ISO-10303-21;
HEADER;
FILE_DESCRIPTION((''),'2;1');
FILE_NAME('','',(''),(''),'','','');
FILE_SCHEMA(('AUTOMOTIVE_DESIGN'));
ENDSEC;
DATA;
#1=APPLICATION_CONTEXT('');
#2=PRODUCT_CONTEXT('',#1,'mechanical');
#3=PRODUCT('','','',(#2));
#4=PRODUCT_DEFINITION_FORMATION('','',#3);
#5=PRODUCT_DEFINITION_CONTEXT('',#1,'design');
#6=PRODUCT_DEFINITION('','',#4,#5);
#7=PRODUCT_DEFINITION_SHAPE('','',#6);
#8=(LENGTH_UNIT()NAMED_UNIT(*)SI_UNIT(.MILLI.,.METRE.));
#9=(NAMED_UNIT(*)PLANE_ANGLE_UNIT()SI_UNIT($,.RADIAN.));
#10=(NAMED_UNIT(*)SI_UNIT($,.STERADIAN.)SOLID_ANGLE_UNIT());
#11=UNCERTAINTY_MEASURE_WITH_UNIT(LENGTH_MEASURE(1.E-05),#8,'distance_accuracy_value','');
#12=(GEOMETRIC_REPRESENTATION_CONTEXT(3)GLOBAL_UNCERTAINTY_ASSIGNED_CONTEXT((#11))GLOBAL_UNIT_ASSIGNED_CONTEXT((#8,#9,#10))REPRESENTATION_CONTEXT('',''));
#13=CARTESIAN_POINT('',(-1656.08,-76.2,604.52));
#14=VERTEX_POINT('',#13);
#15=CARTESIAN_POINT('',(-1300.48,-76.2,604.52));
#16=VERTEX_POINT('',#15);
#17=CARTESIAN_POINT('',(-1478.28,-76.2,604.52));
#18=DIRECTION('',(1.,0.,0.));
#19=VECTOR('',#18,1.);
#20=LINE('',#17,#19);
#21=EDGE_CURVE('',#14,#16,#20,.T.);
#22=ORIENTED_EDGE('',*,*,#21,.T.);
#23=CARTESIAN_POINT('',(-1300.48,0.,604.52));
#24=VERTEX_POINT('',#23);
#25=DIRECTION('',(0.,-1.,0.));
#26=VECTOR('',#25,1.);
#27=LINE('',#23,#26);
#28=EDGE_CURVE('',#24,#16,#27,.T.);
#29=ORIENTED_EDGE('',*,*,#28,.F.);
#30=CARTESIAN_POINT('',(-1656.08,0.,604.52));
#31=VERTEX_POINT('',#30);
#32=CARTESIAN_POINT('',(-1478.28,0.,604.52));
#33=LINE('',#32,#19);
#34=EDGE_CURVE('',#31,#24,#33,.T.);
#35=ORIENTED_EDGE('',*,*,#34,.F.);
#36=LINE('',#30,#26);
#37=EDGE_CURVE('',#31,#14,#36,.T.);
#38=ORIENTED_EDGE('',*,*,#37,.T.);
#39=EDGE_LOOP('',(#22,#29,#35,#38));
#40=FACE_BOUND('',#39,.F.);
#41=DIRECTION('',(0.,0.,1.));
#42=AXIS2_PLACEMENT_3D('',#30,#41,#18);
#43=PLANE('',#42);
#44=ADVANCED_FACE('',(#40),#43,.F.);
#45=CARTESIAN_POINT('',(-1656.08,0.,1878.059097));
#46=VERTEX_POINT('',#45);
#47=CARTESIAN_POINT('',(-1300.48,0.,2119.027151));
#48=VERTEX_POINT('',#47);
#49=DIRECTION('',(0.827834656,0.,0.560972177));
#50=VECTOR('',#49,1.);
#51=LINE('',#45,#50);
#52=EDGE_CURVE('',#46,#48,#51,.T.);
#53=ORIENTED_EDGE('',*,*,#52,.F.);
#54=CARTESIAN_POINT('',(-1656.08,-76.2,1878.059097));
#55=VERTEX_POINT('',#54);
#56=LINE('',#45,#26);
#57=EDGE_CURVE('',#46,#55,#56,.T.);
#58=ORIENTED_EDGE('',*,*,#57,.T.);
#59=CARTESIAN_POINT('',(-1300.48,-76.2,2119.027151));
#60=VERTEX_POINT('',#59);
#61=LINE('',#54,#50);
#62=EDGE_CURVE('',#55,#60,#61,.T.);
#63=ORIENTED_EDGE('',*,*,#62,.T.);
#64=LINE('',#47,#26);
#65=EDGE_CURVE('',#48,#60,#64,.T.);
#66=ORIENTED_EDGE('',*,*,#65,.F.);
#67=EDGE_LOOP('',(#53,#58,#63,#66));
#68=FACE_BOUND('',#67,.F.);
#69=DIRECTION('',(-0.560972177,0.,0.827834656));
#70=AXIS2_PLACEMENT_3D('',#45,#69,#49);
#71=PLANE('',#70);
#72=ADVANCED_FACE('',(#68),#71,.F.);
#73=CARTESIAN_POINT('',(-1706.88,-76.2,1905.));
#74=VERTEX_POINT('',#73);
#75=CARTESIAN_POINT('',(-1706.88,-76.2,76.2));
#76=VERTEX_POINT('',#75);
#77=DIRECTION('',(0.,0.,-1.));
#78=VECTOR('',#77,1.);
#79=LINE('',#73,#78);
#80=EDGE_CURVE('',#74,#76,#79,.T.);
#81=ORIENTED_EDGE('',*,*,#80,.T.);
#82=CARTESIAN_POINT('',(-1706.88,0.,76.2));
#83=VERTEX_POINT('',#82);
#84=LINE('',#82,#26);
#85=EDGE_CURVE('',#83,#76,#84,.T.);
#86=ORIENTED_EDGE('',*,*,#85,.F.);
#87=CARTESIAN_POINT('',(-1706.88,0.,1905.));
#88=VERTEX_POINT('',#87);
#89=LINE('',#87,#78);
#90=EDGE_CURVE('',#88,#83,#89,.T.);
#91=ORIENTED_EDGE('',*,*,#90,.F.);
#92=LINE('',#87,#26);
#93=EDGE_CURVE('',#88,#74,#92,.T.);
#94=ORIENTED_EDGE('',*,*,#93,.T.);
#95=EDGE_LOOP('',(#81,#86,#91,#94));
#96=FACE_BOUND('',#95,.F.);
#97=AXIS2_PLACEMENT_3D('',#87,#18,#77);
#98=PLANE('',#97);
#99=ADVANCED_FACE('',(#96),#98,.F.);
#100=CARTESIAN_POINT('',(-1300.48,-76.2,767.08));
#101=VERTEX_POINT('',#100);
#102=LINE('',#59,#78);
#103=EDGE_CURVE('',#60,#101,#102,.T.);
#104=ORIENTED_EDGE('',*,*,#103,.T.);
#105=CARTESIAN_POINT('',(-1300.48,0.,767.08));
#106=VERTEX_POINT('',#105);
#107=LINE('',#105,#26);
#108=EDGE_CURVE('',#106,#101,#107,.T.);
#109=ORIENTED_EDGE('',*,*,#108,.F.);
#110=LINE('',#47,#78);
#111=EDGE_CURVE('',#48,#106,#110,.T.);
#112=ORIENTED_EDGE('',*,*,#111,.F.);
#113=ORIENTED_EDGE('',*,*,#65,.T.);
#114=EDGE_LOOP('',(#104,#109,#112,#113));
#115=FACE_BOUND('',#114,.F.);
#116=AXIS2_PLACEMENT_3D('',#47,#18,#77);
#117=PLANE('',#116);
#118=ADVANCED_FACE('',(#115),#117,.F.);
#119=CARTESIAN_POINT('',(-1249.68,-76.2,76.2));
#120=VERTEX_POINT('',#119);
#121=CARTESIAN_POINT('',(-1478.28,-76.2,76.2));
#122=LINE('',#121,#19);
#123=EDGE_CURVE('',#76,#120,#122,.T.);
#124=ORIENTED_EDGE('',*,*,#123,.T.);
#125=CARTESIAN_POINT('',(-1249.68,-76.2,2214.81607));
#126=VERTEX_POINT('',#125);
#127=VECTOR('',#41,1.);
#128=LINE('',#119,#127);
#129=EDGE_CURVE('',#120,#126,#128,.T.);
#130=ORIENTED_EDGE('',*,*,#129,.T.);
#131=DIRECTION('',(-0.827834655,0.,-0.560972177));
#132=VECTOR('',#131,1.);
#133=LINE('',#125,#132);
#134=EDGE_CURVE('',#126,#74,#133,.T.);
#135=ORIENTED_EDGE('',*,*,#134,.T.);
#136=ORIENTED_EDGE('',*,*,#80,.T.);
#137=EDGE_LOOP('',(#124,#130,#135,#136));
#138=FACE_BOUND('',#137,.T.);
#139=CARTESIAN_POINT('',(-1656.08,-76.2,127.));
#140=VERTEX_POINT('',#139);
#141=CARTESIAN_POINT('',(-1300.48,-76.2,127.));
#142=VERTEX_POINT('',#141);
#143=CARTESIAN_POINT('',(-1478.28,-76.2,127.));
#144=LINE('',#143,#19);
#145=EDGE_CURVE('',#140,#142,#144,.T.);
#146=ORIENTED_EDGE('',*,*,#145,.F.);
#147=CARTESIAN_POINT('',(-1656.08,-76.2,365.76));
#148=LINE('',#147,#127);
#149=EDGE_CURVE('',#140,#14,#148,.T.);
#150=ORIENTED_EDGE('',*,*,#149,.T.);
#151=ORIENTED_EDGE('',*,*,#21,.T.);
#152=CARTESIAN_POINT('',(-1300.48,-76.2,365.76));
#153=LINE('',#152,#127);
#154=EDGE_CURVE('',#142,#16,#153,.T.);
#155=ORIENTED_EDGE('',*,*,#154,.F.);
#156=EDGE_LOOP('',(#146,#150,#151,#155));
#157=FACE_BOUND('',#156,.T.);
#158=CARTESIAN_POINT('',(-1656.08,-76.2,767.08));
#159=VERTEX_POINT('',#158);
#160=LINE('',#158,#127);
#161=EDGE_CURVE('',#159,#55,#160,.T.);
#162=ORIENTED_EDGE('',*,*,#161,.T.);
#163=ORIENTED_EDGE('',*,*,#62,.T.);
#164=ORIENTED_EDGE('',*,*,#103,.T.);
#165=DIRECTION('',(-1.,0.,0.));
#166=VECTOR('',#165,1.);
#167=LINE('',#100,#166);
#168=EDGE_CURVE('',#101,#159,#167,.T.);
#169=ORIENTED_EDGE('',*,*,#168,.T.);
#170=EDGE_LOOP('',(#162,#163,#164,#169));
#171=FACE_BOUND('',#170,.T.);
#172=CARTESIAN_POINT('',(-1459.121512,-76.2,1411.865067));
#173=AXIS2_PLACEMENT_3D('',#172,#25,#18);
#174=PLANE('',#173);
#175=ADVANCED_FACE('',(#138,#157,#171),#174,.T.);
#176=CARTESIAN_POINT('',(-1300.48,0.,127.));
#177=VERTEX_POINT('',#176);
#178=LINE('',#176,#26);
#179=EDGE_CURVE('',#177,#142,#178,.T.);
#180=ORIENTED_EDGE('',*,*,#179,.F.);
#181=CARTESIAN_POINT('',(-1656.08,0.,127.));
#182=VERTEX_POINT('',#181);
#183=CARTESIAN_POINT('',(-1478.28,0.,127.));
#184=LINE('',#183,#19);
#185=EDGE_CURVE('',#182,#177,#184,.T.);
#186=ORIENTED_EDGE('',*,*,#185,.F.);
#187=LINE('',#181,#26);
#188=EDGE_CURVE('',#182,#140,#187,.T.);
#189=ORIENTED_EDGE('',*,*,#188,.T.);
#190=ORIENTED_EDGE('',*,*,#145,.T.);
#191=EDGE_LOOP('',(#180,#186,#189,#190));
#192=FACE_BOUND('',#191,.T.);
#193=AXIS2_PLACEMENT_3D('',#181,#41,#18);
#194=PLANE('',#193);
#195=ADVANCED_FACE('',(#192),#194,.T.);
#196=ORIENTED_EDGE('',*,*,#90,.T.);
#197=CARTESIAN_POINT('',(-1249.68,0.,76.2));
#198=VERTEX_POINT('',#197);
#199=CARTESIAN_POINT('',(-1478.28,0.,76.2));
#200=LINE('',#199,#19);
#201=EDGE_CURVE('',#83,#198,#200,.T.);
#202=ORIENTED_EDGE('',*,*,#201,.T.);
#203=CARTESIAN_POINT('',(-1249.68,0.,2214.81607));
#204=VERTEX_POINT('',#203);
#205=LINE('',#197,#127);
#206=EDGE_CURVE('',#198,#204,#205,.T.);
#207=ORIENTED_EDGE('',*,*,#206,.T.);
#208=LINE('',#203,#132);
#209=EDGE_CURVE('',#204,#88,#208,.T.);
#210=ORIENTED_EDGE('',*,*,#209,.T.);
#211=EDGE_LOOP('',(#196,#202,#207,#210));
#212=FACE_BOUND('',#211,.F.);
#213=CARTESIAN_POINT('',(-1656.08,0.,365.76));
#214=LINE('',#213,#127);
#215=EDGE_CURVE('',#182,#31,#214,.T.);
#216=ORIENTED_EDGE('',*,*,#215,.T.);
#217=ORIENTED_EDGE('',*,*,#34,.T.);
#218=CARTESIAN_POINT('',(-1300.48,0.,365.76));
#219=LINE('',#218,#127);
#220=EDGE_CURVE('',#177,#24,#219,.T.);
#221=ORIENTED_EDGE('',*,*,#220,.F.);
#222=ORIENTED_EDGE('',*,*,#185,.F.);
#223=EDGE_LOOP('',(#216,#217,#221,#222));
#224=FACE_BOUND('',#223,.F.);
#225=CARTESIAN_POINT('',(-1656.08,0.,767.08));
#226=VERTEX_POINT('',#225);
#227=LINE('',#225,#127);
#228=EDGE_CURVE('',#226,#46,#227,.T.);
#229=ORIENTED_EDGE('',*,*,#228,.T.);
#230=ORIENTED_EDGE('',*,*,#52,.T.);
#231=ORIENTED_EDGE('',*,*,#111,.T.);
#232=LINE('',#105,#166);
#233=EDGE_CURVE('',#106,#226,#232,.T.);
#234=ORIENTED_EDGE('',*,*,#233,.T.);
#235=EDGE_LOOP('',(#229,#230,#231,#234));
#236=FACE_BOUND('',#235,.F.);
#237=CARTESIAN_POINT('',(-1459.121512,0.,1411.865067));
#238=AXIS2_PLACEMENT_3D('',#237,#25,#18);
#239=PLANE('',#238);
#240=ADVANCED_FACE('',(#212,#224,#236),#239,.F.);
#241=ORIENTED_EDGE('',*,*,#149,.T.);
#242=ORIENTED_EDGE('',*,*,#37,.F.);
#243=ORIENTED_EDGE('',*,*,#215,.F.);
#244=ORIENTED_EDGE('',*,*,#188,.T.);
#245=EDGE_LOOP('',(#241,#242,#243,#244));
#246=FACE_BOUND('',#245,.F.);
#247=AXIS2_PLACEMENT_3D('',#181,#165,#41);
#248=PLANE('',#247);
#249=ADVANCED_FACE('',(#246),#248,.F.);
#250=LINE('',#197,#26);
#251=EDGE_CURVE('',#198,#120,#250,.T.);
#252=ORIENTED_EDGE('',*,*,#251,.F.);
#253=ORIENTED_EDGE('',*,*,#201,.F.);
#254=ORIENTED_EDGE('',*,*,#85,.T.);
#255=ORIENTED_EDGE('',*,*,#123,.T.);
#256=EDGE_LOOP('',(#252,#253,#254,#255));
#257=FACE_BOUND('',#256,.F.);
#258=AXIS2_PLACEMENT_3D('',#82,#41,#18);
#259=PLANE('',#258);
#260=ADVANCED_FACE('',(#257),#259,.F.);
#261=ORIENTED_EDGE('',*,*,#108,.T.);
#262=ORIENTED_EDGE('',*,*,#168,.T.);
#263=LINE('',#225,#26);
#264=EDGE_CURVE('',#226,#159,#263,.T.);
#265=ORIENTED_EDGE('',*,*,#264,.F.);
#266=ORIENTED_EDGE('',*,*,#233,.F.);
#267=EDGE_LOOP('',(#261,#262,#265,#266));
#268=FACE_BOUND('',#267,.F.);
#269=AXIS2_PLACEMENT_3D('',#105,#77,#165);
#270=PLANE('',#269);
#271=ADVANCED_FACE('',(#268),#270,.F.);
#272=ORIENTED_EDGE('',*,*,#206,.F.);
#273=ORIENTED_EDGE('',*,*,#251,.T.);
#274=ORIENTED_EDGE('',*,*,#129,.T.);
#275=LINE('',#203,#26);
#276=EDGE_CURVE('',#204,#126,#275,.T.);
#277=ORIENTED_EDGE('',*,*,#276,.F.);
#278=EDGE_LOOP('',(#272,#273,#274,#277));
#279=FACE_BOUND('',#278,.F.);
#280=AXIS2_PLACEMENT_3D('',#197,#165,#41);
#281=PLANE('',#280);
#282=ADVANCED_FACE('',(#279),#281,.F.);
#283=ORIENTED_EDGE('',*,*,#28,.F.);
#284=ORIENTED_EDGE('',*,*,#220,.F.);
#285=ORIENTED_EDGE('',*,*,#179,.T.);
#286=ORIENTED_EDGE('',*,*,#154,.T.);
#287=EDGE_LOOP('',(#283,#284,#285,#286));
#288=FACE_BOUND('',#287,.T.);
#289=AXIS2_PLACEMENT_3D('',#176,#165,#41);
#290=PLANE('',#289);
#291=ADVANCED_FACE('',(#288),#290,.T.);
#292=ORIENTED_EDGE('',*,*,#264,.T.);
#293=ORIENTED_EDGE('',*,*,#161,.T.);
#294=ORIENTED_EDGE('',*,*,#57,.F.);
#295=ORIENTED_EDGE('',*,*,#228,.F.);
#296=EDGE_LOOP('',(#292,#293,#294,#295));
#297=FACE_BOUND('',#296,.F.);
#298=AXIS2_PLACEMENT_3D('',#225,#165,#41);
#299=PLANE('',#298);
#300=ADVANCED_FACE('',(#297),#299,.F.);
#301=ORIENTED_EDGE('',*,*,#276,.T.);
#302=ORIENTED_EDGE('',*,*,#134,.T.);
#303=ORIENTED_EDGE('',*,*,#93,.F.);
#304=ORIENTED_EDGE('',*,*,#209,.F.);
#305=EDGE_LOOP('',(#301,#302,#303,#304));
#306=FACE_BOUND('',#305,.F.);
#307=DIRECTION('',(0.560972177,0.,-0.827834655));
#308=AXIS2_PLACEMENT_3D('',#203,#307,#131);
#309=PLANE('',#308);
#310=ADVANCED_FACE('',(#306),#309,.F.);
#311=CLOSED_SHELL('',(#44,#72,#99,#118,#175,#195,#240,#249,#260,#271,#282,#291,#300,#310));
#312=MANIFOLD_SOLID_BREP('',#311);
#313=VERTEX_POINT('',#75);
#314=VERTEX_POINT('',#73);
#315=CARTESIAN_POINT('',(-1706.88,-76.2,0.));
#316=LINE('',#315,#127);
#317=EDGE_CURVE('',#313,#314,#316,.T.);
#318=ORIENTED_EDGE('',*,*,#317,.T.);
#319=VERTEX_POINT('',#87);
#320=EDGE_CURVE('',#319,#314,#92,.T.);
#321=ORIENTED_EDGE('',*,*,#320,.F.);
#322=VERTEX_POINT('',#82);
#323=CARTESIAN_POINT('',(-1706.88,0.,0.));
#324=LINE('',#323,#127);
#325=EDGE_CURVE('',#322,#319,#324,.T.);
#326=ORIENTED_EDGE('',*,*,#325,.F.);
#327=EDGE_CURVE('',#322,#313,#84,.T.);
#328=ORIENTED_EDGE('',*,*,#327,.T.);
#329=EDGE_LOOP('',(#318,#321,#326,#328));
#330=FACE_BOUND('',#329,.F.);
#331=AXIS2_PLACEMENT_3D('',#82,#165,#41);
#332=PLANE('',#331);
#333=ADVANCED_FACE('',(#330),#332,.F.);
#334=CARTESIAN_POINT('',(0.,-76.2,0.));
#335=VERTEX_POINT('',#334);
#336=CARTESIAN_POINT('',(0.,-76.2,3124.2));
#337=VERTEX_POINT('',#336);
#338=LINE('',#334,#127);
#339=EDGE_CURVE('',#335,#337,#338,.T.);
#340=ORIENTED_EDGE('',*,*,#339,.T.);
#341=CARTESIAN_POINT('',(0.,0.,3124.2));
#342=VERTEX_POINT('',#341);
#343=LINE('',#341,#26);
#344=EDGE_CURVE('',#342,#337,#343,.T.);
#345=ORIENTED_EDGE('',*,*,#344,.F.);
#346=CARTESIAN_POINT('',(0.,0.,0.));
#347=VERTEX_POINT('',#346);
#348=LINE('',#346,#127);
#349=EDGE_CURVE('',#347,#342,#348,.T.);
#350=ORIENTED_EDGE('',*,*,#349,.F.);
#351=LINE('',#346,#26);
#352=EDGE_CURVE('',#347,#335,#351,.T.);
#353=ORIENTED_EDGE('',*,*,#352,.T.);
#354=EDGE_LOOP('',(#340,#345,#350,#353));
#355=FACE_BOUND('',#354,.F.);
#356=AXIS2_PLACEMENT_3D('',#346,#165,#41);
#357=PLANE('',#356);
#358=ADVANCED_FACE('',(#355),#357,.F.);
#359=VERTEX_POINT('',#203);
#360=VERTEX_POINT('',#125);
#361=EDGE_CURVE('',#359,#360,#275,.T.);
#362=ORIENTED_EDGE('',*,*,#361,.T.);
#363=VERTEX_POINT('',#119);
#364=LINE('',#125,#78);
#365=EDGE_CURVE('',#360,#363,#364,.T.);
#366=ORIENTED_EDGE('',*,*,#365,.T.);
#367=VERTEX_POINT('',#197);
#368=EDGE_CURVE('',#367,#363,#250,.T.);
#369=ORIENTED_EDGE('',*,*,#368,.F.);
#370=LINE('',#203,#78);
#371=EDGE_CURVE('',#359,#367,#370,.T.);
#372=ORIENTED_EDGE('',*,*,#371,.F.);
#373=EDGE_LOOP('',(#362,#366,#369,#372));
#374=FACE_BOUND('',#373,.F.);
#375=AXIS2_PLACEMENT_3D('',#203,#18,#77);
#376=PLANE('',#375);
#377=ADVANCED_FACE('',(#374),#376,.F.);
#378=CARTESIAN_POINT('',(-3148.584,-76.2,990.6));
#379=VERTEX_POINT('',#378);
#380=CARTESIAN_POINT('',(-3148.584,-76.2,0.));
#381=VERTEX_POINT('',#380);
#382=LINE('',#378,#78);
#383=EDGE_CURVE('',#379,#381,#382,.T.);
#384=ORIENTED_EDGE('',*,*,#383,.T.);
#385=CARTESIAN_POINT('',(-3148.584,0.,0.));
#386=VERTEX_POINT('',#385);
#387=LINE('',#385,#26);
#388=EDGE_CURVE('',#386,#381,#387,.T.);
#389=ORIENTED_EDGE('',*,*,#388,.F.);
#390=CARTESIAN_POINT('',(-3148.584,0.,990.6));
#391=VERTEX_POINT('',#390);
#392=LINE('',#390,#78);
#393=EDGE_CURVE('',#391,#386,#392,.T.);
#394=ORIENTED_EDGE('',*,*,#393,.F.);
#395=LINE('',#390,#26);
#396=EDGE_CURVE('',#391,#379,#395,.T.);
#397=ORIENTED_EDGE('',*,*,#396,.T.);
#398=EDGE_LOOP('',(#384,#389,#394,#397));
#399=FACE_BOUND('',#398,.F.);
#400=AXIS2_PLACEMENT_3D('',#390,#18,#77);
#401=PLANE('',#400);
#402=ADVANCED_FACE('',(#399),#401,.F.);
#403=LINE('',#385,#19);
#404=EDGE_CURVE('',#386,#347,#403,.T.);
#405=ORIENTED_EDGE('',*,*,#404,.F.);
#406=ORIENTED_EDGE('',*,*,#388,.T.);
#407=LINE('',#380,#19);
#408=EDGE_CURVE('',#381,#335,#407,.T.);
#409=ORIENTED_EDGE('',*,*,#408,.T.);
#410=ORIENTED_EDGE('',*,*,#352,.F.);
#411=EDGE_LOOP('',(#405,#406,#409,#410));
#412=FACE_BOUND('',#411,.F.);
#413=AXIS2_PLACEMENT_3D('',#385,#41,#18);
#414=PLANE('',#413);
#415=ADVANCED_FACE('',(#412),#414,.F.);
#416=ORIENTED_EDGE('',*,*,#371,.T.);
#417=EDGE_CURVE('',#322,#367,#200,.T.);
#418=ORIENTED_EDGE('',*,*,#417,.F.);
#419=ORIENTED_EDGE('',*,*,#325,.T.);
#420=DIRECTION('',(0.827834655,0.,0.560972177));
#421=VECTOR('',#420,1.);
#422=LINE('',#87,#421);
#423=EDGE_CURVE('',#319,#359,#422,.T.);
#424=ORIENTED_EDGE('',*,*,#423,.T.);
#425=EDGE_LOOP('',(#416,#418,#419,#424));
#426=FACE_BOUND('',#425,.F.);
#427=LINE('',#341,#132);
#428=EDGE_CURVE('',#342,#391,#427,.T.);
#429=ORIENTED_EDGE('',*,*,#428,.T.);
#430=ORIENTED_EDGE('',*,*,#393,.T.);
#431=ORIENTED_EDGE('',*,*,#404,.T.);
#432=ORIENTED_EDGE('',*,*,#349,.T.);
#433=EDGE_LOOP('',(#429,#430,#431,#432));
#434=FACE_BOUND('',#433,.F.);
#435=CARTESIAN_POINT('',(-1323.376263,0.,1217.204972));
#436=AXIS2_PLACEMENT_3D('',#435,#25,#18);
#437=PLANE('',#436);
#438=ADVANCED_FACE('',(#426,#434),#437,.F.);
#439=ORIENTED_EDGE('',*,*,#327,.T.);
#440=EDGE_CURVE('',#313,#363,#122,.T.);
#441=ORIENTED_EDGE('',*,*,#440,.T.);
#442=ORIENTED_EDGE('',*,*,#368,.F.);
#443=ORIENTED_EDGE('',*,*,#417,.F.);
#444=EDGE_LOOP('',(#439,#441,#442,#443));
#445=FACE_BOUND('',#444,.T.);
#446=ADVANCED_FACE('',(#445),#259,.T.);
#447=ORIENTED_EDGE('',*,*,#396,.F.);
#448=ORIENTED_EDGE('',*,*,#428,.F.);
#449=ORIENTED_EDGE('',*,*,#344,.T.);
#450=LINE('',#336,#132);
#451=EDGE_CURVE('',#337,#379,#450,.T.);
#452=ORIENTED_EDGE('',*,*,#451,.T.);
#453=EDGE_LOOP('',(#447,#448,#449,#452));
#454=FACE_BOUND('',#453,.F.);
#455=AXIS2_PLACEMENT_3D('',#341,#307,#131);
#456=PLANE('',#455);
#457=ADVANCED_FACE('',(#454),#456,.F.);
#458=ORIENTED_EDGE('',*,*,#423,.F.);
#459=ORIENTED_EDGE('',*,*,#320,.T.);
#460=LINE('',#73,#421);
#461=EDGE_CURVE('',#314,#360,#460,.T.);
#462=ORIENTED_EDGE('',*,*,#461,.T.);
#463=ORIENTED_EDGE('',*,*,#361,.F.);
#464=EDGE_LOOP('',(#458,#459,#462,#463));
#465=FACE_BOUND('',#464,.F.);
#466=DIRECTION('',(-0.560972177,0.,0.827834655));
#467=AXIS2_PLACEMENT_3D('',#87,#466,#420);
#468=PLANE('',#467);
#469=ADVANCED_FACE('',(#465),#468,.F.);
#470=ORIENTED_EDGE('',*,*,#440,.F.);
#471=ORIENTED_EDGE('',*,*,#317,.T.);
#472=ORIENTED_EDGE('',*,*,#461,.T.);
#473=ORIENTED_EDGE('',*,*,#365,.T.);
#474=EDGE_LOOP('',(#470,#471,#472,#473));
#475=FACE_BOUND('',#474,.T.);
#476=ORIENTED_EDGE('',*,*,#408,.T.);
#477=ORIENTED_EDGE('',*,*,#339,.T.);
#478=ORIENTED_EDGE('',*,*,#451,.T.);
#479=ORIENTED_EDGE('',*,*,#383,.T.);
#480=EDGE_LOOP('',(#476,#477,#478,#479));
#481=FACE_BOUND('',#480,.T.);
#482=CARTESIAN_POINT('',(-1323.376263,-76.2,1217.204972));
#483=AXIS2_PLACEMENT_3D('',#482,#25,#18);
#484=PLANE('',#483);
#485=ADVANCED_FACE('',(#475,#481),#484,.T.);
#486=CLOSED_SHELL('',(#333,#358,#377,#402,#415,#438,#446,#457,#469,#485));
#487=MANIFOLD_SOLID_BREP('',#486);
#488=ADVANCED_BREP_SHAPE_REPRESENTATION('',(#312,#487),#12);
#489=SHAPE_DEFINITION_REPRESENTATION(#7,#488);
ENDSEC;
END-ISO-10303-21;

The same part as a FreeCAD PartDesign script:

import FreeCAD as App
import Part
import Sketcher
from FreeCAD import Vector
Q = App.Units.Quantity


def add_polygon(sketch, points):
    """Adds a closed chain of lines whose ends are joined by coincident constraints."""
    first, n = sketch.GeometryCount, len(points)
    for a, b in zip(points, points[1:] + points[:1]):
        sketch.addGeometry(Part.LineSegment(App.Vector(*a, 0), App.Vector(*b, 0)), False)
    for i in range(n):
        sketch.addConstraint(Sketcher.Constraint("Coincident", first + i, 2, first + (i + 1) % n, 1))

doc = App.newDocument("Part")
body = doc.addObject("PartDesign::Body", "Body")

# Sketch on XZ plane
sketch1 = doc.addObject("Sketcher::SketchObject", "Sketch")
body.addObject(sketch1)
sketch1.AttachmentSupport = (doc.XZ_Plane, [""])
sketch1.MapMode = "FlatFace"
add_polygon(sketch1, [(0, 0), (0, 3124), (-3149, 991), (-3149, 0)])  # lines 0-3
add_polygon(sketch1, [(-1707, 76), (-1707, 1905), (-1250, 2215), (-1250, 76)])  # lines 4-7
sketch1.addConstraint([
    Sketcher.Constraint("Vertical", 0),
    Sketcher.Constraint("Vertical", 2),
    Sketcher.Constraint("Horizontal", 3),
    Sketcher.Constraint("Vertical", 4),
    Sketcher.Constraint("Vertical", 6),
    Sketcher.Constraint("Horizontal", 7),
    Sketcher.Constraint("Coincident", 3, 2, -1, 1),
    Sketcher.Constraint("Parallel", 1, 5),
    Sketcher.Constraint("DistanceX", 7, 2, 7, 1, Q("18 in")),
    Sketcher.Constraint("DistanceY", 0, 1, 0, 2, Q("123 in")),
    Sketcher.Constraint("DistanceY", 2, 2, 2, 1, Q("39 in")),
    Sketcher.Constraint("DistanceY", 4, 1, 4, 2, Q("72 in")),
    Sketcher.Constraint("DistanceY", -1, 1, 4, 2, Q("75 in")),
    Sketcher.Constraint("DistanceX", 3, 1, 3, 2, Q("123.96 in")),
    Sketcher.Constraint("DistanceX", 4, 2, -1, 1, Q("67.2 in")),
])
pad1 = doc.addObject("PartDesign::Pad", "Pad")
body.addObject(pad1)
pad1.Profile = sketch1
pad1.Length = Q("3 in")
body2 = doc.addObject("PartDesign::Body", "Body001")

# Sketch on XZ plane
sketch2 = doc.addObject("Sketcher::SketchObject", "Sketch001")
body2.addObject(sketch2)
sketch2.AttachmentSupport = (doc.getObject("XZ_Plane001"), [""])
sketch2.MapMode = "FlatFace"
add_polygon(sketch2, [(-1707, 1905), (-1707, 76), (-1250, 76), (-1250, 2215)])  # lines 0-3
add_polygon(sketch2, [(-1300, 2119), (-1300, 767), (-1656, 767), (-1656, 1878)])  # lines 4-7
add_polygon(sketch2, [(-1656, 127), (-1656, 605), (-1300, 605), (-1300, 127)])  # lines 8-11
sketch2.addConstraint([
    Sketcher.Constraint("Vertical", 0),
    Sketcher.Constraint("Horizontal", 1),
    Sketcher.Constraint("Vertical", 2),
    Sketcher.Constraint("Vertical", 4),
    Sketcher.Constraint("Horizontal", 5),
    Sketcher.Constraint("Vertical", 6),
    Sketcher.Constraint("Vertical", 8),
    Sketcher.Constraint("Horizontal", 9),
    Sketcher.Constraint("Vertical", 10),
    Sketcher.Constraint("Horizontal", 11),
    Sketcher.Constraint("Parallel", 3, 7),
    Sketcher.Constraint("Vertical", 6, 2, 8, 2),
    Sketcher.Constraint("Vertical", 7, 2, 9, 2),
    Sketcher.Constraint("DistanceX", 1, 1, 1, 2, Q("18 in")),
    Sketcher.Constraint("DistanceX", 5, 2, 5, 1, Q("14 in")),
    Sketcher.Constraint("DistanceY", 0, 2, 0, 1, Q("72 in")),
    Sketcher.Constraint("DistanceY", 8, 1, 8, 2, Q("18.8 in")),
    Sketcher.Constraint("DistanceY", -1, 1, 0, 2, Q("3 in")),
    Sketcher.Constraint("DistanceY", -1, 1, 10, 2, Q("5 in")),
    Sketcher.Constraint("DistanceX", 4, 2, 1, 2, Q("2 in")),
    Sketcher.Constraint("DistanceX", 0, 2, -1, 1, Q("67.2 in")),
    Sketcher.Constraint("DistanceY", -1, 1, 4, 2, Q("30.2 in")),
    Sketcher.Constraint("Distance", 3, 552.2842),
    Sketcher.Constraint("DistanceY", 4, 2, 4, 1, 1351.947151),
])
pad2 = doc.addObject("PartDesign::Pad", "Pad001")
body2.addObject(pad2)
pad2.Profile = sketch2
pad2.Length = Q("3 in")

doc.recompute()
